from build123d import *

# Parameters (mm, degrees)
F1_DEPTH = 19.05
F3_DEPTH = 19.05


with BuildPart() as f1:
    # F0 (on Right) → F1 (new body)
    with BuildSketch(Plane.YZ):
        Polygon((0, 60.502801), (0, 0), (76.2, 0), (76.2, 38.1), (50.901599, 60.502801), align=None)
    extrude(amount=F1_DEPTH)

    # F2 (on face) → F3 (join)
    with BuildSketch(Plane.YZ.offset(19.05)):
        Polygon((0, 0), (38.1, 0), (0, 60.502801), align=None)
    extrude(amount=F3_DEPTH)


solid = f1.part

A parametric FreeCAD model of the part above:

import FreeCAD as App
import Part
import Sketcher

V = App.Vector
Q = App.Units.Quantity


def add_polygon(sketch, points):
    """Adds a closed chain of lines whose ends are joined by coincident constraints."""
    first, n = sketch.GeometryCount, len(points)
    for a, b in zip(points, points[1:] + points[:1]):
        sketch.addGeometry(Part.LineSegment(App.Vector(*a, 0), App.Vector(*b, 0)), False)
    for i in range(n):
        sketch.addConstraint(Sketcher.Constraint("Coincident", first + i, 2, first + (i + 1) % n, 1))

doc = App.newDocument("Part")
body = doc.addObject("PartDesign::Body", "Body")

sketch1 = doc.addObject("Sketcher::SketchObject", "Sketch")
body.addObject(sketch1)
sketch1.AttachmentSupport = (doc.YZ_Plane, [""])
sketch1.MapMode = "FlatFace"
add_polygon(sketch1, [(0, 61), (0, 0), (76, 0), (76, 38), (51, 61)])
sketch1.addConstraint([
    Sketcher.Constraint("Vertical", 0),
    Sketcher.Constraint("Horizontal", 1),
    Sketcher.Constraint("Vertical", 2),
    Sketcher.Constraint("Horizontal", 4),
    Sketcher.Constraint("Coincident", 0, 2, -1, 1),
    Sketcher.Constraint("DistanceX", 1, 1, 1, 2, Q("3 in")),
    Sketcher.Constraint("DistanceY", 2, 1, 2, 2, Q("1.5 in")),
    Sketcher.Constraint("DistanceX", 4, 2, 4, 1, Q("2.004 in")),
    Sketcher.Constraint("DistanceY", 0, 2, 0, 1, Q("2.382 in")),
])
pad1 = doc.addObject("PartDesign::Pad", "Pad")
body.addObject(pad1)
pad1.Profile = sketch1
pad1.Length = Q("0.75 in")

sketch2 = doc.addObject("Sketcher::SketchObject", "Sketch001")
body.addObject(sketch2)
sketch2.AttachmentSupport = (doc.YZ_Plane, [""])
sketch2.MapMode = "FlatFace"
sketch2.AttachmentOffset = App.Placement(V(0, 0, 0.75 * 25.4), App.Rotation())
add_polygon(sketch2, [(0, 0), (38, 0), (0, 61)])
sketch2.addConstraint([
    Sketcher.Constraint("Horizontal", 0),
    Sketcher.Constraint("Vertical", 2),
    Sketcher.Constraint("Coincident", 2, 2, -1, 1),
    Sketcher.Constraint("DistanceX", 0, 1, 0, 2, Q("1.5 in")),
    Sketcher.Constraint("DistanceY", 2, 2, 2, 1, Q("2.382 in")),
])
pad2 = doc.addObject("PartDesign::Pad", "Pad001")
body.addObject(pad2)
pad2.Profile = sketch2
pad2.Length = Q("0.75 in")

doc.recompute()
